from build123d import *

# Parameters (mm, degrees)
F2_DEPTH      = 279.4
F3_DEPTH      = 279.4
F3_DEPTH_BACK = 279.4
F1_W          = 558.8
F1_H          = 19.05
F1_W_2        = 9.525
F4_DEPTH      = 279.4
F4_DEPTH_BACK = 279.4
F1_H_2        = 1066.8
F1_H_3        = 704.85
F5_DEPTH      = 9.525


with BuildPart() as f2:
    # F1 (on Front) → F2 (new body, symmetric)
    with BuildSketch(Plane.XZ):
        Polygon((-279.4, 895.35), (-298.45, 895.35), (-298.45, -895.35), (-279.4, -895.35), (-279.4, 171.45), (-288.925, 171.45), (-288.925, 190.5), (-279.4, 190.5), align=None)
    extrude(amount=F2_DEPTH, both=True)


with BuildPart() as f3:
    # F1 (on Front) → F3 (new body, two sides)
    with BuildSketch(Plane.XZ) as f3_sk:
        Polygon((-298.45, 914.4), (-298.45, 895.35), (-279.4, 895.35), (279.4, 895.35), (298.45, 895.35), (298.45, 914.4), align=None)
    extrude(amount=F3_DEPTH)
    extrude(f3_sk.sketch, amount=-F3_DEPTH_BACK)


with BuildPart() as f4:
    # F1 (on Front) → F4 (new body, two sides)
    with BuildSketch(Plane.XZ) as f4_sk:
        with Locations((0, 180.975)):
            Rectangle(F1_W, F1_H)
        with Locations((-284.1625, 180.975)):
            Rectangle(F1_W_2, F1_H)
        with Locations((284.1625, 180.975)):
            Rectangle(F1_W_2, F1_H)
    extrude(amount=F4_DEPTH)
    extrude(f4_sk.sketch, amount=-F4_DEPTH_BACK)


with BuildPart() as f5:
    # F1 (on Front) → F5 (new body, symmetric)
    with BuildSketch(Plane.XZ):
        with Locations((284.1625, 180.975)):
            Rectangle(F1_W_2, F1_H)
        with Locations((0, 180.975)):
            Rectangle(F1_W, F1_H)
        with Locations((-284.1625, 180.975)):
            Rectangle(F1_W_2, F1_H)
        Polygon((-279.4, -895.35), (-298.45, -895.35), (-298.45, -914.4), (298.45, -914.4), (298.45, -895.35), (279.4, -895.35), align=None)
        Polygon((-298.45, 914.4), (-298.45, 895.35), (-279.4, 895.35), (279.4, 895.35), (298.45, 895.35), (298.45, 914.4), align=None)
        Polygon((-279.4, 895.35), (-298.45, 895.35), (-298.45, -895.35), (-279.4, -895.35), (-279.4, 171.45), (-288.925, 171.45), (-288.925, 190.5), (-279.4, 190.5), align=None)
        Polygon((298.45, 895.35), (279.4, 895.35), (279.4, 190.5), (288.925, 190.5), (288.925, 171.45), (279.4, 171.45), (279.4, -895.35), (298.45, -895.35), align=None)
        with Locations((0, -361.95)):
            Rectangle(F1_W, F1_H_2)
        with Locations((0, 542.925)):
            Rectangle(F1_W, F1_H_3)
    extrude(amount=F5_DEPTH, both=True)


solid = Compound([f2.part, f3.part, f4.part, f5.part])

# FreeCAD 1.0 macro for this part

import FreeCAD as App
import Part
import Sketcher
Q = App.Units.Quantity

doc = App.newDocument("Part")
params = doc.addObject("Spreadsheet::Sheet", "Params")
for row, (alias, value) in enumerate([
    ("sketch1_height", "42 in"),
    ("sketch1_height2", "70.5 in"),
    ("sketch1_width", "0.75 in"),
    ("sketch1_width2", "0.375 in"),
    ("pad1_length", "22 in"),
    ("sketch2_width", "23.5 in"),
    ("sketch2_height", "0.75 in"),
    ("pad2_length", "11 in"),
    ("pad2_length2", "11 in"),
    ("sketch3_width", "22.75 in"),
    ("sketch3_height", "0.75 in"),
    ("pad3_length", "11 in"),
    ("pad3_length2", "11 in"),
    ("sketch4_height", "72 in"),
    ("sketch4_width", "23.5 in"),
    ("pad4_length", "0.75 in"),
], start=1):
    params.set(f"A{row}", alias)
    params.set(f"B{row}", "=" + value)
    params.setAlias(f"B{row}", alias)

body = doc.addObject("PartDesign::Body", "Body")

# Sketch on XZ plane
sketch1 = body.newObject("Sketcher::SketchObject", "Sketch")
sketch1.AttachmentSupport = (doc.getObject("XZ_Plane"), [""])
sketch1.MapMode = "FlatFace"
sketch1.addGeometry([
    Part.LineSegment(App.Vector(-279, 895, 0), App.Vector(-298, 895, 0)),  # 0
    Part.LineSegment(App.Vector(-298, 895, 0), App.Vector(-298, -895, 0)),  # 1
    Part.LineSegment(App.Vector(-298, -895, 0), App.Vector(-279, -895, 0)),  # 2
    Part.LineSegment(App.Vector(-279, -895, 0), App.Vector(-279, 171, 0)),  # 3
    Part.LineSegment(App.Vector(-279, 171, 0), App.Vector(-289, 171, 0)),  # 4
    Part.LineSegment(App.Vector(-289, 171, 0), App.Vector(-289, 190, 0)),  # 5
    Part.LineSegment(App.Vector(-289, 190, 0), App.Vector(-279, 190, 0)),  # 6
    Part.LineSegment(App.Vector(-279, 190, 0), App.Vector(-279, 895, 0)),  # 7
], False)
sketch1.addConstraint([
    Sketcher.Constraint("Coincident", 0, 2, 1, 1),
    Sketcher.Constraint("Coincident", 1, 2, 2, 1),
    Sketcher.Constraint("Coincident", 2, 2, 3, 1),
    Sketcher.Constraint("Coincident", 3, 2, 4, 1),
    Sketcher.Constraint("Coincident", 4, 2, 5, 1),
    Sketcher.Constraint("Coincident", 5, 2, 6, 1),
    Sketcher.Constraint("Coincident", 6, 2, 7, 1),
    Sketcher.Constraint("Coincident", 7, 2, 0, 1),
    Sketcher.Constraint("Horizontal", 0),
    Sketcher.Constraint("Vertical", 1),
    Sketcher.Constraint("Horizontal", 2),
    Sketcher.Constraint("Vertical", 3),
    Sketcher.Constraint("Horizontal", 4),
    Sketcher.Constraint("Vertical", 5),
    Sketcher.Constraint("Horizontal", 6),
    Sketcher.Constraint("Vertical", 7),
    Sketcher.Constraint("Symmetric", 2, 2, 7, 2, -1),
    Sketcher.Constraint("Equal", 2, 5),
    Sketcher.Constraint("DistanceY", 3, 1, 3, 2, Q("42 in")),
    Sketcher.Constraint("DistanceY", 1, 2, 1, 1, Q("70.5 in")),
    Sketcher.Constraint("DistanceX", 2, 2, -1, 1, Q("11 in")),
    Sketcher.Constraint("DistanceX", 0, 2, 0, 1, Q("0.75 in")),
    Sketcher.Constraint("DistanceX", 4, 2, 4, 1, Q("0.375 in")),
])
sketch1.setExpression("Constraints[18]", "Params.sketch1_height")
sketch1.setExpression("Constraints[19]", "Params.sketch1_height2")
sketch1.setExpression("Constraints[21]", "Params.sketch1_width")
sketch1.setExpression("Constraints[22]", "Params.sketch1_width2")
pad1 = body.newObject("PartDesign::Pad", "Pad")
pad1.Profile = sketch1
pad1.setExpression("Length", "Params.pad1_length")
pad1.Midplane = True
body2 = doc.addObject("PartDesign::Body", "Body001")

# Sketch on XZ plane
sketch2 = body2.newObject("Sketcher::SketchObject", "Sketch001")
sketch2.AttachmentSupport = (doc.getObject("XZ_Plane001"), [""])
sketch2.MapMode = "FlatFace"
sketch2.addGeometry([
    Part.LineSegment(App.Vector(-298, 914, 0), App.Vector(-298, 895, 0)),
    Part.LineSegment(App.Vector(-298, 895, 0), App.Vector(298, 895, 0)),
    Part.LineSegment(App.Vector(298, 895, 0), App.Vector(298, 914, 0)),
    Part.LineSegment(App.Vector(298, 914, 0), App.Vector(-298, 914, 0)),
], False)
sketch2.addConstraint([
    Sketcher.Constraint("Coincident", 0, 2, 1, 1),
    Sketcher.Constraint("Coincident", 1, 2, 2, 1),
    Sketcher.Constraint("Coincident", 2, 2, 3, 1),
    Sketcher.Constraint("Coincident", 3, 2, 0, 1),
    Sketcher.Constraint("Vertical", 0),
    Sketcher.Constraint("Horizontal", 1),
    Sketcher.Constraint("Vertical", 2),
    Sketcher.Constraint("Horizontal", 3),
    Sketcher.Constraint("DistanceX", 1, 1, 1, 2, Q("23.5 in")),
    Sketcher.Constraint("DistanceY", -1, 1, 2, 2, Q("36 in")),
    Sketcher.Constraint("DistanceY", 0, 2, 0, 1, Q("0.75 in")),
    Sketcher.Constraint("DistanceX", 0, 2, -1, 1, Q("11.75 in")),
])
sketch2.setExpression("Constraints[8]", "Params.sketch2_width")
sketch2.setExpression("Constraints[10]", "Params.sketch2_height")
pad2 = body2.newObject("PartDesign::Pad", "Pad001")
pad2.Profile = sketch2
pad2.Type = "TwoLengths"
pad2.setExpression("Length", "Params.pad2_length")
pad2.setExpression("Length2", "Params.pad2_length2")
body3 = doc.addObject("PartDesign::Body", "Body002")

# Sketch on XZ plane
sketch3 = body3.newObject("Sketcher::SketchObject", "Sketch002")
sketch3.AttachmentSupport = (doc.getObject("XZ_Plane002"), [""])
sketch3.MapMode = "FlatFace"
sketch3.addGeometry([
    Part.LineSegment(App.Vector(-289, 190, 0), App.Vector(-289, 171, 0)),
    Part.LineSegment(App.Vector(-289, 171, 0), App.Vector(289, 171, 0)),
    Part.LineSegment(App.Vector(289, 171, 0), App.Vector(289, 190, 0)),
    Part.LineSegment(App.Vector(289, 190, 0), App.Vector(-289, 190, 0)),
], False)
sketch3.addConstraint([
    Sketcher.Constraint("Coincident", 0, 2, 1, 1),
    Sketcher.Constraint("Coincident", 1, 2, 2, 1),
    Sketcher.Constraint("Coincident", 2, 2, 3, 1),
    Sketcher.Constraint("Coincident", 3, 2, 0, 1),
    Sketcher.Constraint("Vertical", 0),
    Sketcher.Constraint("Horizontal", 1),
    Sketcher.Constraint("Vertical", 2),
    Sketcher.Constraint("Horizontal", 3),
    Sketcher.Constraint("DistanceX", 1, 1, 1, 2, Q("22.75 in")),
    Sketcher.Constraint("DistanceY", 0, 2, 0, 1, Q("0.75 in")),
    Sketcher.Constraint("DistanceY", -1, 1, 2, 2, Q("7.5 in")),
    Sketcher.Constraint("DistanceX", 0, 2, -1, 1, Q("11.375 in")),
])
sketch3.setExpression("Constraints[8]", "Params.sketch3_width")
sketch3.setExpression("Constraints[9]", "Params.sketch3_height")
pad3 = body3.newObject("PartDesign::Pad", "Pad002")
pad3.Profile = sketch3
pad3.Type = "TwoLengths"
pad3.setExpression("Length", "Params.pad3_length")
pad3.setExpression("Length2", "Params.pad3_length2")
body4 = doc.addObject("PartDesign::Body", "Body003")

# Sketch on XZ plane
sketch4 = body4.newObject("Sketcher::SketchObject", "Sketch003")
sketch4.AttachmentSupport = (doc.getObject("XZ_Plane003"), [""])
sketch4.MapMode = "FlatFace"
sketch4.addGeometry([
    Part.LineSegment(App.Vector(298, 914, 0), App.Vector(-298, 914, 0)),
    Part.LineSegment(App.Vector(-298, 914, 0), App.Vector(-298, -914, 0)),
    Part.LineSegment(App.Vector(-298, -914, 0), App.Vector(298, -914, 0)),
    Part.LineSegment(App.Vector(298, -914, 0), App.Vector(298, 914, 0)),
], False)
sketch4.addConstraint([
    Sketcher.Constraint("Coincident", 0, 2, 1, 1),
    Sketcher.Constraint("Coincident", 1, 2, 2, 1),
    Sketcher.Constraint("Coincident", 2, 2, 3, 1),
    Sketcher.Constraint("Coincident", 3, 2, 0, 1),
    Sketcher.Constraint("Horizontal", 0),
    Sketcher.Constraint("Vertical", 1),
    Sketcher.Constraint("Horizontal", 2),
    Sketcher.Constraint("Vertical", 3),
    Sketcher.Constraint("Symmetric", 0, 2, 2, 2, -1, 1),
    Sketcher.Constraint("DistanceY", 1, 2, 1, 1, Q("72 in")),
    Sketcher.Constraint("DistanceX", 0, 2, 0, 1, Q("23.5 in")),
])
sketch4.setExpression("Constraints[9]", "Params.sketch4_height")
sketch4.setExpression("Constraints[10]", "Params.sketch4_width")
pad4 = body4.newObject("PartDesign::Pad", "Pad003")
pad4.Profile = sketch4
pad4.setExpression("Length", "Params.pad4_length")
pad4.Midplane = True

doc.recompute()
